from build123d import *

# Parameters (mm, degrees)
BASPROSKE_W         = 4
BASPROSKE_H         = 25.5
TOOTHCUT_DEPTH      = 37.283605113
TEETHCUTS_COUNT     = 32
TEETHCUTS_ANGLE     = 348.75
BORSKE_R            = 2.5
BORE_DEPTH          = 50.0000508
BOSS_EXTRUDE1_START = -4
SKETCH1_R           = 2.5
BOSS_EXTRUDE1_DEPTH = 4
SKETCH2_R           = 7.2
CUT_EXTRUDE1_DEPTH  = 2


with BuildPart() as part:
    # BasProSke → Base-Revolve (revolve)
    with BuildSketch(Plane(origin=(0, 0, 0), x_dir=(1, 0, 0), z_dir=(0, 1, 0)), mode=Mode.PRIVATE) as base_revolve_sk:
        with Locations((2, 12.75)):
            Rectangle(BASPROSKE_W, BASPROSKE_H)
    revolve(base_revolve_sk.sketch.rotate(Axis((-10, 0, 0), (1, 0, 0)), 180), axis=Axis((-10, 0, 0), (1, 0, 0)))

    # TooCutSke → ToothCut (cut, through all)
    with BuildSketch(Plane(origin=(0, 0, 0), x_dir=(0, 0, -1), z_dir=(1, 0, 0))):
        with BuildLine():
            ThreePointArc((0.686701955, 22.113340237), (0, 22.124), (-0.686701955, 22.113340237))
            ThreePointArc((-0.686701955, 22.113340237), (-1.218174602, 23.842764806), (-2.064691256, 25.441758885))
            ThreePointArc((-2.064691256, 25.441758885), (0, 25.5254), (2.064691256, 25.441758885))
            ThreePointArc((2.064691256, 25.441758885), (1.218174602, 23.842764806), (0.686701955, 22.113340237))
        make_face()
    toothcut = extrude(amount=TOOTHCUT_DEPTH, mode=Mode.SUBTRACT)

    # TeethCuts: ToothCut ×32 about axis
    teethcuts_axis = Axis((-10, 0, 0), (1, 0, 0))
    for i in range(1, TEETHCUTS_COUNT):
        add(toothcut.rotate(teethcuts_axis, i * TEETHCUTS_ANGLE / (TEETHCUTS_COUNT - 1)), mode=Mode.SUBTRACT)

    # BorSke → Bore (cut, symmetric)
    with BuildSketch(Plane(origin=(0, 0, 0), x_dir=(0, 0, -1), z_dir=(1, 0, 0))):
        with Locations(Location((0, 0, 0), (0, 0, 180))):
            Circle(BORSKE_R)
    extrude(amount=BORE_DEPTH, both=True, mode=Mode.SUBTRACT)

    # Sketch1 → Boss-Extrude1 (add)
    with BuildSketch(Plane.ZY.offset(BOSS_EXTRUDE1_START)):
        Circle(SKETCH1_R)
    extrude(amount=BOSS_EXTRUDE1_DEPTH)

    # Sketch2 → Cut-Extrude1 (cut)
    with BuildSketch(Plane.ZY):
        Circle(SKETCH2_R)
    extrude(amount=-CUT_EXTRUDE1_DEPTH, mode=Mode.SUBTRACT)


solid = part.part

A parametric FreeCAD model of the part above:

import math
import FreeCAD as App
import Part
import Sketcher
from FreeCAD import Vector
Q = App.Units.Quantity

doc = App.newDocument("Part")
body = doc.addObject("PartDesign::Body", "Body")

sketch1 = doc.addObject("Sketcher::SketchObject", "Sketch")
body.addObject(sketch1)
sketch1.AttachmentSupport = (doc.XZ_Plane, [""])
sketch1.MapMode = "FlatFace"
sketch1.addGeometry([
    Part.LineSegment(Vector(0, -25.5, 0), Vector(0, 0, 0)),
    Part.LineSegment(Vector(0, 0, 0), Vector(4, 0, 0)),
    Part.LineSegment(Vector(4, 0, 0), Vector(4, -25.5, 0)),
    Part.LineSegment(Vector(4, -25.5, 0), Vector(0, -25.5, 0)),
], False)
sketch1.addConstraint([
    Sketcher.Constraint("Coincident", 0, 2, 1, 1),
    Sketcher.Constraint("Coincident", 1, 2, 2, 1),
    Sketcher.Constraint("Coincident", 2, 2, 3, 1),
    Sketcher.Constraint("Coincident", 3, 2, 0, 1),
    Sketcher.Constraint("Vertical", 0),
    Sketcher.Constraint("Horizontal", 1),
    Sketcher.Constraint("Vertical", 2),
    Sketcher.Constraint("Horizontal", 3),
    Sketcher.Constraint("Coincident", 0, 2, -1, 1),
    Sketcher.Constraint("DistanceX", 1, 1, 1, 2, Q("4 mm")),
    Sketcher.Constraint("DistanceY", 0, 1, 0, 2, Q("25.5 mm")),
])
revolution = doc.addObject("PartDesign::Revolution", "Revolution")
body.addObject(revolution)
revolution.Profile = sketch1
revolution.ReferenceAxis = (sketch1, ["H_Axis"])
revolution.Angle = 360

sketch2 = doc.addObject("Sketcher::SketchObject", "Sketch001")
body.addObject(sketch2)
sketch2.AttachmentSupport = (doc.YZ_Plane, [""])
sketch2.MapMode = "FlatFace"
sketch2.addGeometry([
    Part.ArcOfCircle(Part.Circle(Vector(0, 0, 0), Vector(0, 0, 1), 22.1), math.radians(-1.78), math.radians(1.78)),
    Part.ArcOfCircle(Part.Circle(Vector(20.2, -10.1, 0), Vector(0, 0, 1), 9.6), math.radians(57), math.radians(78)),
    Part.ArcOfCircle(Part.Circle(Vector(0, 0, 0), Vector(0, 0, 1), 25.5), math.radians(-4.64), math.radians(4.64)),
    Part.ArcOfCircle(Part.Circle(Vector(20.2, 10.1, 0), Vector(0, 0, 1), 9.6), math.radians(-78), math.radians(-57)),
], False)
sketch2.addConstraint([
    Sketcher.Constraint("Coincident", 0, 1, 1, 2),
    Sketcher.Constraint("Coincident", 1, 1, 2, 1),
    Sketcher.Constraint("Coincident", 2, 2, 3, 2),
    Sketcher.Constraint("Coincident", 3, 1, 0, 2),
    Sketcher.Constraint("Coincident", 0, 3, -1, 1),
    Sketcher.Constraint("Coincident", 2, 3, -1, 1),
    Sketcher.Constraint("Equal", 1, 3),
    Sketcher.Constraint("Symmetric", 1, 3, 3, 3, -1),
    Sketcher.Constraint("Radius", 1, Q("9.6 mm")),
    Sketcher.Constraint("Radius", 0, Q("22.124001 mm")),
    Sketcher.Constraint("Radius", 2, Q("25.5254 mm")),
    Sketcher.Constraint("DistanceY", 0, 1, -1, 1, Q("0.686702 mm")),
    Sketcher.Constraint("DistanceX", -1, 1, 1, 1, Q("25.441759 mm")),
])
pocket1 = doc.addObject("PartDesign::Pocket", "Pocket")
body.addObject(pocket1)
pocket1.Profile = sketch2
pocket1.Type = "ThroughAll"
pocket1.Reversed = True
doc.recompute()

polarpattern = doc.addObject("PartDesign::PolarPattern", "PolarPattern")
body.addObject(polarpattern)
polarpattern.Originals = [pocket1]
polarpattern.Axis = (doc.X_Axis, [""])
polarpattern.Angle = 360
polarpattern.Occurrences = 32
body.Tip = polarpattern

sketch3 = doc.addObject("Sketcher::SketchObject", "Sketch002")
body.addObject(sketch3)
sketch3.AttachmentSupport = (doc.YZ_Plane, [""])
sketch3.MapMode = "FlatFace"
sketch3.addGeometry(Part.Circle(Vector(0, 0, 0), Vector(0, 0, 1), 2.5), False)
sketch3.addConstraint([
    Sketcher.Constraint("Coincident", 0, 3, -1, 1),
    Sketcher.Constraint("Diameter", 0, Q("5 mm")),
])
pocket2 = doc.addObject("PartDesign::Pocket", "Pocket001")
body.addObject(pocket2)
pocket2.Profile = sketch3
pocket2.Length = 100.000102
pocket2.Midplane = True

sketch4 = doc.addObject("Sketcher::SketchObject", "Sketch003")
body.addObject(sketch4)
sketch4.AttachmentSupport = (doc.YZ_Plane, [""])
sketch4.MapMode = "FlatFace"
sketch4.AttachmentOffset = App.Placement(Vector(0, 0, 4), App.Rotation())
sketch4.addGeometry(Part.Circle(Vector(0, 0, 0), Vector(0, 0, 1), 2.5), False)
sketch4.addConstraint([
    Sketcher.Constraint("Coincident", 0, 3, -1, 1),
    Sketcher.Constraint("Diameter", 0, Q("5 mm")),
])
pad1 = doc.addObject("PartDesign::Pad", "Pad")
body.addObject(pad1)
pad1.Profile = sketch4
pad1.Length = 4
pad1.Reversed = True

sketch5 = doc.addObject("Sketcher::SketchObject", "Sketch004")
body.addObject(sketch5)
sketch5.AttachmentSupport = (doc.YZ_Plane, [""])
sketch5.MapMode = "FlatFace"
sketch5.addGeometry(Part.Circle(Vector(0, 0, 0), Vector(0, 0, 1), 7), False)
sketch5.addConstraint([
    Sketcher.Constraint("Coincident", 0, 3, -1, 1),
    Sketcher.Constraint("Diameter", 0, Q("14.4 mm")),
])
pocket3 = doc.addObject("PartDesign::Pocket", "Pocket002")
body.addObject(pocket3)
pocket3.Profile = sketch5
pocket3.Length = 2
pocket3.Reversed = True

doc.recompute()
